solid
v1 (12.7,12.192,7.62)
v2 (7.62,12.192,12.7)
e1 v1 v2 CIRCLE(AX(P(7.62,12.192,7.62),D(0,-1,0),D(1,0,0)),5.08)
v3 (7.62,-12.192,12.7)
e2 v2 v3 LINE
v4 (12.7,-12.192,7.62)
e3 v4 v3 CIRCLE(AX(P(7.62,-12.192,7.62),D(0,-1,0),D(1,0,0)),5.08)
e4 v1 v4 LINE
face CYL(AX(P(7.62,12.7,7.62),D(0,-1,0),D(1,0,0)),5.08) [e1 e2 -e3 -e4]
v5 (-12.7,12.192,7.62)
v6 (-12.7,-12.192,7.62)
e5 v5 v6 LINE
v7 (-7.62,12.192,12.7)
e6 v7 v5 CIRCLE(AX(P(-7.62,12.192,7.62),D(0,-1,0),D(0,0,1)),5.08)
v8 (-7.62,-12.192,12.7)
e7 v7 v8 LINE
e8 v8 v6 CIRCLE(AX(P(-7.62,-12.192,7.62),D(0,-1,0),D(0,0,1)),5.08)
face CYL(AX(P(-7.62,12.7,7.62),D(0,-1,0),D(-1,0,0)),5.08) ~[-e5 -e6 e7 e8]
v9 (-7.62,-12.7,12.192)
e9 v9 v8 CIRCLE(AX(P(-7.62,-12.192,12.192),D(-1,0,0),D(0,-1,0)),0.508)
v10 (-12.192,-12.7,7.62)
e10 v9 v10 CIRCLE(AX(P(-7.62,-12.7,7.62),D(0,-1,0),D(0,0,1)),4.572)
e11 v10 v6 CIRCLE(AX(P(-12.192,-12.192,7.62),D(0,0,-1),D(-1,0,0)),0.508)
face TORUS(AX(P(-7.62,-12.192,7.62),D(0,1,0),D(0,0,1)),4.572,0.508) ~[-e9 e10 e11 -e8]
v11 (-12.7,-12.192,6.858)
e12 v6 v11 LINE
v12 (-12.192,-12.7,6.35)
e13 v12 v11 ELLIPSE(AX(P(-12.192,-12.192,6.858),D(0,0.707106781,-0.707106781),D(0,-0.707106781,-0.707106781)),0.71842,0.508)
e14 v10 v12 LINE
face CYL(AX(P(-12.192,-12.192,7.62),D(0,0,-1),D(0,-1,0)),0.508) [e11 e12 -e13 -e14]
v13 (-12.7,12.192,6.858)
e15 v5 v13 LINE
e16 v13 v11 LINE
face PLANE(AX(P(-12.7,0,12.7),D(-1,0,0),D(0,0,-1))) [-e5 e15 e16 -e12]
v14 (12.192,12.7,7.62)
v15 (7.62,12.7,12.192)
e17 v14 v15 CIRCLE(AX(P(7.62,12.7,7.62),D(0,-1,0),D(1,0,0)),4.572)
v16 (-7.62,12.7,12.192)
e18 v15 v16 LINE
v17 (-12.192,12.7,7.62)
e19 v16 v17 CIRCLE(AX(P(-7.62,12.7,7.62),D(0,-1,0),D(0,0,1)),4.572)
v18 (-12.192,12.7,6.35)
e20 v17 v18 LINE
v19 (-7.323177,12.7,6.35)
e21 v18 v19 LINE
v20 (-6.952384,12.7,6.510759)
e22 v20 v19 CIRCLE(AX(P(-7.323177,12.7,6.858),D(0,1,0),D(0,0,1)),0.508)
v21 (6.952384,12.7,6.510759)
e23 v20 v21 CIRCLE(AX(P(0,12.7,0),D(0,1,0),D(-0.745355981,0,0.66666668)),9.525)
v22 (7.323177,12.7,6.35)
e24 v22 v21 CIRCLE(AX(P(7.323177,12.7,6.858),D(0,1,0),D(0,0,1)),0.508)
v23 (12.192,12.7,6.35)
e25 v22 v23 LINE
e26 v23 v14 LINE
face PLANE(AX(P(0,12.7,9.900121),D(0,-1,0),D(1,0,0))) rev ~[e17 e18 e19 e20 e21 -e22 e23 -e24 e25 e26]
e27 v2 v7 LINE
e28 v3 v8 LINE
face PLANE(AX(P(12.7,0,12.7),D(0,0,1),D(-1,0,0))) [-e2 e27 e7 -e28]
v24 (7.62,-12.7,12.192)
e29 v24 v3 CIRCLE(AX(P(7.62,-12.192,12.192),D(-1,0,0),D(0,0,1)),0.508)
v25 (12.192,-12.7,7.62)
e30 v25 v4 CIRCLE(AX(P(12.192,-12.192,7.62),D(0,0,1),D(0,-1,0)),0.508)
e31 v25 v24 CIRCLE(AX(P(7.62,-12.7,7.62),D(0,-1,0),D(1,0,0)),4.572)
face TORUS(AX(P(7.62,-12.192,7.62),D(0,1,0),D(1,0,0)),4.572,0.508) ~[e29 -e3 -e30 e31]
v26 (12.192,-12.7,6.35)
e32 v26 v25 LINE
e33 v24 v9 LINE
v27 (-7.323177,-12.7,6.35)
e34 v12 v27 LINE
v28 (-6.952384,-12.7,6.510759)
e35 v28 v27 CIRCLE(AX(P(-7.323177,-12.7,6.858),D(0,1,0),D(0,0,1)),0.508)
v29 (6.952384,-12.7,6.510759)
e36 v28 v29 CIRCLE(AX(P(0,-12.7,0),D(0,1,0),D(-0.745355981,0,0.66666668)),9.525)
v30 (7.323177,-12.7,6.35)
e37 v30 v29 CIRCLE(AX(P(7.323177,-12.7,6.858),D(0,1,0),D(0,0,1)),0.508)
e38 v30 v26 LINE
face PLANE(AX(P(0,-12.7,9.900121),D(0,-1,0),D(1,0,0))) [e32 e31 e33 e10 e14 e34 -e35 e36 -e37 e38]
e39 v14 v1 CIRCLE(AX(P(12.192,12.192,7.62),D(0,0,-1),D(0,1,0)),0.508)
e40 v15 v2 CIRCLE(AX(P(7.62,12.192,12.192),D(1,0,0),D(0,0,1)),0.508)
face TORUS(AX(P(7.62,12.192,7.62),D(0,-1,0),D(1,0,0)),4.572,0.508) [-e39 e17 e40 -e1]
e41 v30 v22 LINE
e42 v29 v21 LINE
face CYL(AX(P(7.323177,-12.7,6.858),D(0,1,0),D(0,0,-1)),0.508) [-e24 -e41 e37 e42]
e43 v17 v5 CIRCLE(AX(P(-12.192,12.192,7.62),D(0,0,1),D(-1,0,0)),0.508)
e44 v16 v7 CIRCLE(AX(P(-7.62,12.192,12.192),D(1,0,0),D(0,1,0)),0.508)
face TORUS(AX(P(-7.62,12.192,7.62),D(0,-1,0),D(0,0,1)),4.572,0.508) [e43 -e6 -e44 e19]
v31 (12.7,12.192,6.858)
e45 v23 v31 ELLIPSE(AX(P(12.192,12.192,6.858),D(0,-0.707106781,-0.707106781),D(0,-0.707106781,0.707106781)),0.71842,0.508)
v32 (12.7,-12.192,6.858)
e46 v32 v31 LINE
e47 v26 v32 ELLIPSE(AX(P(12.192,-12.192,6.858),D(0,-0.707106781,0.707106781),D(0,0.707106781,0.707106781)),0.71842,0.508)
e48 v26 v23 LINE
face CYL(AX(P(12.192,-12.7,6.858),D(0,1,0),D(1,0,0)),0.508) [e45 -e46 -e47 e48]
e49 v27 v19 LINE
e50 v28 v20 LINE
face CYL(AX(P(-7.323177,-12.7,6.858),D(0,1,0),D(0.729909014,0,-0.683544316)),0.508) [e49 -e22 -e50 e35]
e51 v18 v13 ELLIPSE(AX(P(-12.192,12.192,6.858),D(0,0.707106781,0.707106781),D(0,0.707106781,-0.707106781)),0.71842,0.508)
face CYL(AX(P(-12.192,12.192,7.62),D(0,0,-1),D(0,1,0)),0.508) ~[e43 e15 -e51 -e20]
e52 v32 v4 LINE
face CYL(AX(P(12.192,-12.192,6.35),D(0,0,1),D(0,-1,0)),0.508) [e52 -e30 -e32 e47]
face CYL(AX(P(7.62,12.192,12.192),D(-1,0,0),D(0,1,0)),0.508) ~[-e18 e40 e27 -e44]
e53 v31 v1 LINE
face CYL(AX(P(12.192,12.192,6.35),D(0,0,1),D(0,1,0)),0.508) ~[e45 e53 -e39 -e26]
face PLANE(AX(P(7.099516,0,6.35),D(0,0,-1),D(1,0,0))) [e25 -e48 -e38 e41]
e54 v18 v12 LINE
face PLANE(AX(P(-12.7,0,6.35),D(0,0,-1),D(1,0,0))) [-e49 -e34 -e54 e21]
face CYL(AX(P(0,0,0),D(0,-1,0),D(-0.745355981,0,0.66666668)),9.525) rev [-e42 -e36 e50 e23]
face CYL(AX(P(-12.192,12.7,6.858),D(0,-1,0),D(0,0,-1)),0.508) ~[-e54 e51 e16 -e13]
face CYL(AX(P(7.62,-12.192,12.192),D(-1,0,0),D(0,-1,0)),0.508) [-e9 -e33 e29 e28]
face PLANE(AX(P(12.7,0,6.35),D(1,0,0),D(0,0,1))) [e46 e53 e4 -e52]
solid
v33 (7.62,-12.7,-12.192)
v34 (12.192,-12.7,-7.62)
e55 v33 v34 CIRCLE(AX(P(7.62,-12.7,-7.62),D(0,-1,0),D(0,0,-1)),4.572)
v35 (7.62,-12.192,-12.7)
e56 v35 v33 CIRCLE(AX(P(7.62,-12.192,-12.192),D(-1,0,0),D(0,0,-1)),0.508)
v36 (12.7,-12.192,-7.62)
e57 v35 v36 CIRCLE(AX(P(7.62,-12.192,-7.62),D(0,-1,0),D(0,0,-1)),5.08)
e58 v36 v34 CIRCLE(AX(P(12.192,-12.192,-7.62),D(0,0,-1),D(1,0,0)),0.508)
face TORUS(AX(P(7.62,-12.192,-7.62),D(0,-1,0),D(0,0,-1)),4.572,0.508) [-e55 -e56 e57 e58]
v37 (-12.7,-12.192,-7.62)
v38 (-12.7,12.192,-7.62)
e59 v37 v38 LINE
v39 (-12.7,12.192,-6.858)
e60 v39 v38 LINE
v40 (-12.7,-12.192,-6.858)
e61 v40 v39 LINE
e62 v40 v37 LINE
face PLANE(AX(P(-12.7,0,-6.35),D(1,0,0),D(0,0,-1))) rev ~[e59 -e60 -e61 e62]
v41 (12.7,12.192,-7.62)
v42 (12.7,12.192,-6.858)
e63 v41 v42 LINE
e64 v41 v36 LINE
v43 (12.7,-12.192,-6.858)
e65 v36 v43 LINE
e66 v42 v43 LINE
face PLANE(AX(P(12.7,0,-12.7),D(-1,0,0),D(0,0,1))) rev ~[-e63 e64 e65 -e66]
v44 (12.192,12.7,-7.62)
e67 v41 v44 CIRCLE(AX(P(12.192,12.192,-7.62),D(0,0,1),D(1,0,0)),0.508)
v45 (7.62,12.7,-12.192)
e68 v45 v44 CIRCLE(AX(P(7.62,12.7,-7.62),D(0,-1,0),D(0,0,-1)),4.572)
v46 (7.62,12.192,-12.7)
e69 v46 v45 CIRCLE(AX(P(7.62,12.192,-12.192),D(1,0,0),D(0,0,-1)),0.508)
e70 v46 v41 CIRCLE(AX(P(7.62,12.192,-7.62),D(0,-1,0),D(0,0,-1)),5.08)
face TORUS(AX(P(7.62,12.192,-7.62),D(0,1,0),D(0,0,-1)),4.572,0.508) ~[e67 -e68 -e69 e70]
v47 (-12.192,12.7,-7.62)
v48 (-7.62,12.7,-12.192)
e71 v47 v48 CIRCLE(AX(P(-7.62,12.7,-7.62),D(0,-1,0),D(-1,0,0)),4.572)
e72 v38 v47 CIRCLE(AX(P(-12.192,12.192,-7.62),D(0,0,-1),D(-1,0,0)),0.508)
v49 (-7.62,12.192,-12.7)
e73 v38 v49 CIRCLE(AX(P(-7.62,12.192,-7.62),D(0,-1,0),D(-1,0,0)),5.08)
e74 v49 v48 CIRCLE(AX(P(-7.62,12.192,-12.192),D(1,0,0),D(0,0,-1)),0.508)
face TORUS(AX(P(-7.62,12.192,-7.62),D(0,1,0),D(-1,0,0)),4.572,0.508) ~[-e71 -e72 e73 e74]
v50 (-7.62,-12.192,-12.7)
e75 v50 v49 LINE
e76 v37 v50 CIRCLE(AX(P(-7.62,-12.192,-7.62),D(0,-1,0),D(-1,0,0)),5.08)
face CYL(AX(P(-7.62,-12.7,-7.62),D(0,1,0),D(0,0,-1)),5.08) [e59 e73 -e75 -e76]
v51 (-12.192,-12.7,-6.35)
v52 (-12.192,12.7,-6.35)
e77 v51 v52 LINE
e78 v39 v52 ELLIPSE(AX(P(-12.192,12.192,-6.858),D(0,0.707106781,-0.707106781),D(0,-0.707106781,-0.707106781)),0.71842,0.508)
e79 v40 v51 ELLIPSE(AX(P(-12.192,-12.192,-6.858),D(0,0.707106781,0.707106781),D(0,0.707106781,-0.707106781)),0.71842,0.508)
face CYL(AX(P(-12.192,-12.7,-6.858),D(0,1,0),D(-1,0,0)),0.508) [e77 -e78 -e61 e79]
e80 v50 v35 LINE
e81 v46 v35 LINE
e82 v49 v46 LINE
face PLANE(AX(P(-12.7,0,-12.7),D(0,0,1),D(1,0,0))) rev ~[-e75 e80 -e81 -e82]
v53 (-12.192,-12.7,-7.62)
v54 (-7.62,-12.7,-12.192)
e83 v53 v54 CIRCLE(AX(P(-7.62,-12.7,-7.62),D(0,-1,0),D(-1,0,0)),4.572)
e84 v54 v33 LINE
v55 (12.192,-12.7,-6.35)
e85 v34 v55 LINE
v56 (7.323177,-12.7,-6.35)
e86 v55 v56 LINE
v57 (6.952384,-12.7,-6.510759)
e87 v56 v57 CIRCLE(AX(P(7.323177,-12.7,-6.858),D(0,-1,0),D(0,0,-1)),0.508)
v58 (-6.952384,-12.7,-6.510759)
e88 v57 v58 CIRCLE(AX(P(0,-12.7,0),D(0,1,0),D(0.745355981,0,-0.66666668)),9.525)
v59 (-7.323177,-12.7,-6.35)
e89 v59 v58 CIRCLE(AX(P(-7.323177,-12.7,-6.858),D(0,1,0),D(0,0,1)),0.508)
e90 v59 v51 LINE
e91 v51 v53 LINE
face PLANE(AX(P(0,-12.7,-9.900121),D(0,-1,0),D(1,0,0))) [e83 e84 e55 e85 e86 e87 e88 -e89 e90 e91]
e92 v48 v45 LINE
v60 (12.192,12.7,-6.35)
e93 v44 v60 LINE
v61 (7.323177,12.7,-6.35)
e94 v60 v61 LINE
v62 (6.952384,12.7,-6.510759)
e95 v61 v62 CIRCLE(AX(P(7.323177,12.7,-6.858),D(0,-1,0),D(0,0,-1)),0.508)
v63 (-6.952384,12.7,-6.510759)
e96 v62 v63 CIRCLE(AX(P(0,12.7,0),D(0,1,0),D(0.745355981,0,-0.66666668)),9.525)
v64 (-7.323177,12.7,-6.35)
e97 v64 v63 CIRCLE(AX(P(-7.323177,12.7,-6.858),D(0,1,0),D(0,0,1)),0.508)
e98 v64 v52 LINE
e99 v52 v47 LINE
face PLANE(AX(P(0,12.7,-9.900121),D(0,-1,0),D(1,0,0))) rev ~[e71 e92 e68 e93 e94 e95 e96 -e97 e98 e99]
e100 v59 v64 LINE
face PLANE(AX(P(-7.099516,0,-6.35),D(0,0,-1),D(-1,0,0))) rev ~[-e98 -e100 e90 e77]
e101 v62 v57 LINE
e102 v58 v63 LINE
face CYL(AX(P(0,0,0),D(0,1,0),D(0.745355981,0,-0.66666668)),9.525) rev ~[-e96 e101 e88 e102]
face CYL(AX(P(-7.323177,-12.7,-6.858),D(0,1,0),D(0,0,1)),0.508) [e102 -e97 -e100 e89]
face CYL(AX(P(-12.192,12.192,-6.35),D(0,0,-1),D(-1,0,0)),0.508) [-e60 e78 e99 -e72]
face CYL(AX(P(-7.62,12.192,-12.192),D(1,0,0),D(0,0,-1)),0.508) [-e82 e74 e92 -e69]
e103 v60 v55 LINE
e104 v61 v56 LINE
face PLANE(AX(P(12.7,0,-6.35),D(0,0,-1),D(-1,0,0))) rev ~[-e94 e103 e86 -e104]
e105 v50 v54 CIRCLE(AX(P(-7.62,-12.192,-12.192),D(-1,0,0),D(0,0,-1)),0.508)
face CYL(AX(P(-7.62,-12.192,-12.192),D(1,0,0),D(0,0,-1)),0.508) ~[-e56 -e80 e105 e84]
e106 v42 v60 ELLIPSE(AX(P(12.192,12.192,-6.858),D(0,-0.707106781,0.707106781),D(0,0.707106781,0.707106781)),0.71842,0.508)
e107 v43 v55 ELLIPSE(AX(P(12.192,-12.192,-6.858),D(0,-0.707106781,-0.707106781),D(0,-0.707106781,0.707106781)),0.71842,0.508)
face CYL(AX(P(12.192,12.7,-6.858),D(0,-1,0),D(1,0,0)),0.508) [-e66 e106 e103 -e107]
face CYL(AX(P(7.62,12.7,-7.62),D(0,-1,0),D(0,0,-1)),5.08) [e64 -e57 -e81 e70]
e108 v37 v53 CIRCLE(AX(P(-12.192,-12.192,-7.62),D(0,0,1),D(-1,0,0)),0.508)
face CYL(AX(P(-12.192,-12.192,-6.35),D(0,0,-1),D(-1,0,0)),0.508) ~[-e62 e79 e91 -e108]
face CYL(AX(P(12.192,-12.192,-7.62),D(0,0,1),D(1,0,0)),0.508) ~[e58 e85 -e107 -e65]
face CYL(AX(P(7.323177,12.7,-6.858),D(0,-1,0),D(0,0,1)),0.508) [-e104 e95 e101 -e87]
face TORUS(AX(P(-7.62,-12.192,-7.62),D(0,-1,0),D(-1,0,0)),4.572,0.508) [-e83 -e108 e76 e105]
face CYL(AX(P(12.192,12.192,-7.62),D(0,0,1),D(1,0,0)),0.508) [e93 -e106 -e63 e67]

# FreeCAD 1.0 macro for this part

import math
import FreeCAD as App
import Part
import Sketcher
from FreeCAD import Vector
Q = App.Units.Quantity


def edges_at(feature, points):
    """Names of the edges that pass closest to the given points."""
    edges = feature.Shape.Edges
    near = lambda p: min(range(len(edges)), key=lambda i: edges[i].distToShape(Part.Vertex(*p))[0])
    return sorted({f"Edge{near(p) + 1}" for p in points})

doc = App.newDocument("Part")
params = doc.addObject("Spreadsheet::Sheet", "Params")
for row, (alias, value) in enumerate([
    ("sketch1_width", "1 in"),
    ("sketch1_radius", "0.375 in"),
    ("sketch1_height", "0.25 in"),
    ("pad1_length", "1 in"),
    ("fillet_radius", "0.2 in"),
    ("fillet2_radius", "0.02 in"),
], start=1):
    params.set(f"A{row}", alias)
    params.set(f"B{row}", "=" + value)
    params.setAlias(f"B{row}", alias)

body = doc.addObject("PartDesign::Body", "Body")
body.AllowCompound = True

# Sketch on XZ plane
sketch1 = body.newObject("Sketcher::SketchObject", "Sketch")
sketch1.AttachmentSupport = (doc.getObject("XZ_Plane"), [""])
sketch1.MapMode = "FlatFace"
sketch1.addGeometry(Part.LineSegment(Vector(-13, -13, 0), Vector(13, -13, 0)), False)
sketch1.addGeometry(Part.LineSegment(Vector(13, -13, 0), Vector(13, -6, 0)), False)
sketch1.addGeometry(Part.LineSegment(Vector(13, -6, 0), Vector(7, -6, 0)), False)
sketch1.addGeometry(Part.ArcOfCircle(Part.Circle(Vector(0, 0, 0), Vector(0, 0, 1), 10), math.radians(-138), math.radians(-42)), False)
sketch1.addGeometry(Part.LineSegment(Vector(-7, -6, 0), Vector(-13, -6, 0)), False)
sketch1.addGeometry(Part.LineSegment(Vector(-13, -6, 0), Vector(-13, -13, 0)), False)
sketch1.addGeometry(Part.LineSegment(Vector(13, 6, 0), Vector(13, 13, 0)), False)
sketch1.addGeometry(Part.LineSegment(Vector(13, 13, 0), Vector(-13, 13, 0)), False)
sketch1.addGeometry(Part.LineSegment(Vector(-13, 13, 0), Vector(-13, 6, 0)), False)
sketch1.addGeometry(Part.LineSegment(Vector(-13, 6, 0), Vector(-7, 6, 0)), False)
sketch1.addGeometry(Part.ArcOfCircle(Part.Circle(Vector(0, 0, 0), Vector(0, 0, 1), 10), math.radians(42), math.radians(138)), False)
sketch1.addGeometry(Part.LineSegment(Vector(7, 6, 0), Vector(13, 6, 0)), False)
sketch1.addConstraint(Sketcher.Constraint("Coincident", 0, 2, 1, 1))
sketch1.addConstraint(Sketcher.Constraint("Coincident", 1, 2, 2, 1))
sketch1.addConstraint(Sketcher.Constraint("Coincident", 2, 2, 3, 2))
sketch1.addConstraint(Sketcher.Constraint("Coincident", 3, 1, 4, 1))
sketch1.addConstraint(Sketcher.Constraint("Coincident", 4, 2, 5, 1))
sketch1.addConstraint(Sketcher.Constraint("Coincident", 5, 2, 0, 1))
sketch1.addConstraint(Sketcher.Constraint("Coincident", 6, 2, 7, 1))
sketch1.addConstraint(Sketcher.Constraint("Coincident", 7, 2, 8, 1))
sketch1.addConstraint(Sketcher.Constraint("Coincident", 8, 2, 9, 1))
sketch1.addConstraint(Sketcher.Constraint("Coincident", 9, 2, 10, 2))
sketch1.addConstraint(Sketcher.Constraint("Coincident", 10, 1, 11, 1))
sketch1.addConstraint(Sketcher.Constraint("Coincident", 11, 2, 6, 1))
sketch1.addConstraint(Sketcher.Constraint("Horizontal", 0))
sketch1.addConstraint(Sketcher.Constraint("Vertical", 1))
sketch1.addConstraint(Sketcher.Constraint("Horizontal", 2))
sketch1.addConstraint(Sketcher.Constraint("Horizontal", 4))
sketch1.addConstraint(Sketcher.Constraint("Vertical", 5))
sketch1.addConstraint(Sketcher.Constraint("Vertical", 6))
sketch1.addConstraint(Sketcher.Constraint("Horizontal", 7))
sketch1.addConstraint(Sketcher.Constraint("Vertical", 8))
sketch1.addConstraint(Sketcher.Constraint("Horizontal", 9))
sketch1.addConstraint(Sketcher.Constraint("Horizontal", 11))
sketch1.addConstraint(Sketcher.Constraint("Coincident", 3, 3, -1, 1))
sketch1.addConstraint(Sketcher.Constraint("Coincident", 10, 3, -1, 1))
sketch1.addConstraint(Sketcher.Constraint("Equal", 3, 10))
sketch1.addConstraint(Sketcher.Constraint("Symmetric", 5, 2, 6, 2, -1, 1))
sketch1.addConstraint(Sketcher.Constraint("Symmetric", 1, 2, 8, 2, -1, 1))
sketch1.addConstraint(Sketcher.Constraint("Symmetric", 1, 2, 4, 2, -2))
sketch1.addConstraint(Sketcher.Constraint("Horizontal", 9, 2, 10, 1))
sketch1.addConstraint(Sketcher.Constraint("DistanceX", 0, 1, 0, 2, Q("1 in")))
sketch1.addConstraint(Sketcher.Constraint("Radius", 3, Q("0.375 in")))
sketch1.addConstraint(Sketcher.Constraint("DistanceY", 0, 2, 6, 2, Q("1 in")))
sketch1.addConstraint(Sketcher.Constraint("DistanceY", 1, 1, 1, 2, Q("0.25 in")))
sketch1.setExpression("Constraints[29]", "Params.sketch1_width")
sketch1.setExpression("Constraints[30]", "Params.sketch1_radius")
sketch1.setExpression("Constraints[32]", "Params.sketch1_height")
pad1 = body.newObject("PartDesign::Pad", "Pad")
pad1.Profile = sketch1
pad1.setExpression("Length", "Params.pad1_length")
pad1.Midplane = True
doc.recompute()

fillet = body.newObject("PartDesign::Fillet", "Fillet")
fillet.Base = (pad1, edges_at(pad1, [
    (12.7, 0, 12.7),
    (-12.7, 0, 12.7),
    (12.7, 0, -12.7),
    (-12.7, 0, -12.7),
]))
fillet.setExpression("Radius", "Params.fillet_radius")
doc.recompute()

fillet2 = body.newObject("PartDesign::Fillet", "Fillet001")
fillet2.Base = (fillet, edges_at(fillet, [
    (0, -12.7, 12.7),
    (0, 12.7, 12.7),
    (0, -12.7, -12.7),
    (0, 12.7, -12.7),
    (-12.7, 0, 6.35),
    (-7.1, 0, 6.35),
    (7.1, 0, 6.35),
    (12.7, 0, 6.35),
    (12.7, 0, -6.35),
    (-12.7, 0, -6.35),
    (7.1, 0, -6.35),
    (-7.1, 0, -6.35),
]))
fillet2.setExpression("Radius", "Params.fillet2_radius")

doc.recompute()
